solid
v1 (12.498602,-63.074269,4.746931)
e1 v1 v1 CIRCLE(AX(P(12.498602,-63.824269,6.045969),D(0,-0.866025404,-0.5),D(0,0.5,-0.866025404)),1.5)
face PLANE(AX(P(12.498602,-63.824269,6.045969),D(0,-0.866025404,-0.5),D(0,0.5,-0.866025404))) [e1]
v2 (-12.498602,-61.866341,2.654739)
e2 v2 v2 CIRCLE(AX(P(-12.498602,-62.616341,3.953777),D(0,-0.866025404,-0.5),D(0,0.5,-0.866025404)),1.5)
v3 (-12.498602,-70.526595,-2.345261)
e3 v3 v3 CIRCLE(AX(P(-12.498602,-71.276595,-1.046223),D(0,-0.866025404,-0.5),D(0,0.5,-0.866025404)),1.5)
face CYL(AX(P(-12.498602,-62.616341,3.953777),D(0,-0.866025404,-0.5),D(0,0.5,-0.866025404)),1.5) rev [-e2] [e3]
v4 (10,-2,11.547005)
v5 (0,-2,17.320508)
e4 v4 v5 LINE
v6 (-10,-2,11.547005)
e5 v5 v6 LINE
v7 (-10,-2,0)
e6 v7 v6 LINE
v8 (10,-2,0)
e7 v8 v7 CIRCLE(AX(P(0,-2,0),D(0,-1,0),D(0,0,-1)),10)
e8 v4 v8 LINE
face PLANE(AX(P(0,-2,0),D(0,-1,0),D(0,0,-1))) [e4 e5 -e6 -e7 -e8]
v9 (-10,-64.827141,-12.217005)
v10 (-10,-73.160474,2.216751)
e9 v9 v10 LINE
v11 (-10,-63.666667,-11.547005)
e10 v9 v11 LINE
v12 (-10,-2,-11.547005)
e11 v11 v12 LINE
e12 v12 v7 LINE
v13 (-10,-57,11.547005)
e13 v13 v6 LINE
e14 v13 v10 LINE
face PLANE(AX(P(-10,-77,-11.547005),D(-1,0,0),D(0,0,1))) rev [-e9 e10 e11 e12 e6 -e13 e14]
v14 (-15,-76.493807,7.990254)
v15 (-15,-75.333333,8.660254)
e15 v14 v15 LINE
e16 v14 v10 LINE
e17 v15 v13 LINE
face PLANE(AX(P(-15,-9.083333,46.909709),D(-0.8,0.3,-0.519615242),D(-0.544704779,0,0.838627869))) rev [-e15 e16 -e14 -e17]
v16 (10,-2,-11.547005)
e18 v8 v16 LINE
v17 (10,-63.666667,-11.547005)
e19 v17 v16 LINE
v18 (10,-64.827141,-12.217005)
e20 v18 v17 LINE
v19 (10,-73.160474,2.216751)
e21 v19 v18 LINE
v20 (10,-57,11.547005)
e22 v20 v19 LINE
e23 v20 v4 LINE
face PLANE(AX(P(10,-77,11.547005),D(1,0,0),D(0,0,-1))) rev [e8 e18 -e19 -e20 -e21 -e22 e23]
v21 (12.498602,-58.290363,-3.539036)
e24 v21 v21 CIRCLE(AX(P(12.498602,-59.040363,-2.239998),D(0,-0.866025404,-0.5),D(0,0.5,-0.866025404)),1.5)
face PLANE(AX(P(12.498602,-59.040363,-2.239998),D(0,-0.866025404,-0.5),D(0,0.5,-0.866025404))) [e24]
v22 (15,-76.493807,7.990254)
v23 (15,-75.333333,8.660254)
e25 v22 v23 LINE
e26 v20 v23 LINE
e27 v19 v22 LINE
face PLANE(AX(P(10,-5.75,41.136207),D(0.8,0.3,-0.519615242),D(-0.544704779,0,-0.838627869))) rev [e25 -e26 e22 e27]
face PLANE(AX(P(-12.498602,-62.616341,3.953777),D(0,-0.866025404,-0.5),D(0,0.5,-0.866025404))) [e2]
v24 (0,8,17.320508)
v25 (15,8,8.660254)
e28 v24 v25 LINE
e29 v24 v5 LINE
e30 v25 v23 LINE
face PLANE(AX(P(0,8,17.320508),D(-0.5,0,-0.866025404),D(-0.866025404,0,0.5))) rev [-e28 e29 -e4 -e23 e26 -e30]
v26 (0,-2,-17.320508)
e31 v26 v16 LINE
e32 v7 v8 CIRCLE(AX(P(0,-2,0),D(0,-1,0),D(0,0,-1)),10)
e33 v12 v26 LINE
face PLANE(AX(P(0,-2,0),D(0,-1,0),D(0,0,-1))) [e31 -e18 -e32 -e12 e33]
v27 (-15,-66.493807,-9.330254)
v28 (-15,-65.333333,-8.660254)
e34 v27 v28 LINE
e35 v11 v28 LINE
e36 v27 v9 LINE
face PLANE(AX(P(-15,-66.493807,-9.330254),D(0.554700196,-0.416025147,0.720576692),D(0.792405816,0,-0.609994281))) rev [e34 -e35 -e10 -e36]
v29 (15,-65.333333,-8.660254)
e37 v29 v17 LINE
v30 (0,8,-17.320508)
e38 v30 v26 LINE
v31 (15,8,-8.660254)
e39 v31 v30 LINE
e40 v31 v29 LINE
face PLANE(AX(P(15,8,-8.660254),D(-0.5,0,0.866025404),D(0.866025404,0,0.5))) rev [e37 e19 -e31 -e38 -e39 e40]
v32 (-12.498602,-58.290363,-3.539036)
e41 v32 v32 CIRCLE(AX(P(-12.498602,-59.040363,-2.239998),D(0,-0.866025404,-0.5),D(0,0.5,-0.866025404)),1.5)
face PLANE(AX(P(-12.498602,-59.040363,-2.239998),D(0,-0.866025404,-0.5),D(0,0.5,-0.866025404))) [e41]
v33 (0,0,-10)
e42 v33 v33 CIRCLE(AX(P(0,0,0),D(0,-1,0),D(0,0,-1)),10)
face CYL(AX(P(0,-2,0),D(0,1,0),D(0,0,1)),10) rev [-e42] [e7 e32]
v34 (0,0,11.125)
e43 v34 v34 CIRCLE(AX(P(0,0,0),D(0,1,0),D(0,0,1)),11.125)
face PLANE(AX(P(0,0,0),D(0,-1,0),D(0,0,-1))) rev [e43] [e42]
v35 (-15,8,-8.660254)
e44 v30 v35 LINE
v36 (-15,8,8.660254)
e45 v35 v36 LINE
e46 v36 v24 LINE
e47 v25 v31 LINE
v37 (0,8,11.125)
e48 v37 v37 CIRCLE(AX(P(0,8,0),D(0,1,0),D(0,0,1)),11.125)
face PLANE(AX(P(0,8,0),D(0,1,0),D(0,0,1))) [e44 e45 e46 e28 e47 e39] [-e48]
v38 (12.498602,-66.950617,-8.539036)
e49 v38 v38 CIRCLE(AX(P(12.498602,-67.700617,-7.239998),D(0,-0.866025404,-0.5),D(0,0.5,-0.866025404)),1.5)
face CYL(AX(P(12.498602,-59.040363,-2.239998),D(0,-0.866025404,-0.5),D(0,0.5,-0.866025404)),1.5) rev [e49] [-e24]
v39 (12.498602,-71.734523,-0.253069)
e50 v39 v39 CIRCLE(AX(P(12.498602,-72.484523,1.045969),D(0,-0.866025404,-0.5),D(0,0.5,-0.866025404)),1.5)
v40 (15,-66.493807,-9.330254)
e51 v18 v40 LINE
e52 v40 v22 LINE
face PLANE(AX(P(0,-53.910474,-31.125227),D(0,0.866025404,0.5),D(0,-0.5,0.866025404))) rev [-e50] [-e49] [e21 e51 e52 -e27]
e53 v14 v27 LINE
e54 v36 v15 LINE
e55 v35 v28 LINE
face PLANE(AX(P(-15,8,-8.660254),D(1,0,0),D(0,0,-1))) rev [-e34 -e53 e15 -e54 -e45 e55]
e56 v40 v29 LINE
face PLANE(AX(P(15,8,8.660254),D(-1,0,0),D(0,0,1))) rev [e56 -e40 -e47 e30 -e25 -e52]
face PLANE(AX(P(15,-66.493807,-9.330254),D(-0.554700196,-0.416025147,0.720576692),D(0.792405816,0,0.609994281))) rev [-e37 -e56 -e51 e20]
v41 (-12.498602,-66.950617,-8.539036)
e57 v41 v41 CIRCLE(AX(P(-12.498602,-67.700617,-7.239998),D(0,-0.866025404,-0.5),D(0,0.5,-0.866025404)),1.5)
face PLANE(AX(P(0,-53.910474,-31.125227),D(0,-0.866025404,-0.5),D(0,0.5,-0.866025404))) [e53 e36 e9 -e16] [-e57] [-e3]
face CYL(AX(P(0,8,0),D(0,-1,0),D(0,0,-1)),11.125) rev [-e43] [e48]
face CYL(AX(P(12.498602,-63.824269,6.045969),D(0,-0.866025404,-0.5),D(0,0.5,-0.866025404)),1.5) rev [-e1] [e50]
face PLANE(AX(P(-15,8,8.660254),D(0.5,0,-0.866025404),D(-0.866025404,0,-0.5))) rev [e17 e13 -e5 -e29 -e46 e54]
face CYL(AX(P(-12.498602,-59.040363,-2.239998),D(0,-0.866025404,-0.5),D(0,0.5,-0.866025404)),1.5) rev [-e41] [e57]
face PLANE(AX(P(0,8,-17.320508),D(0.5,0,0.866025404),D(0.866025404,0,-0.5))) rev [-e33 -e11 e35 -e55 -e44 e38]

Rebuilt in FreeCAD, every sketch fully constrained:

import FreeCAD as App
import Part
import Sketcher
Q = App.Units.Quantity

doc = App.newDocument("Part")
body = doc.addObject("PartDesign::Body", "Body")

# Sketch on XZ plane
sketch1 = body.newObject("Sketcher::SketchObject", "Sketch")
sketch1.AttachmentSupport = (doc.getObject("XZ_Plane"), [""])
sketch1.MapMode = "FlatFace"
sketch1.addGeometry([
    Part.LineSegment(App.Vector(0, -17, 0), App.Vector(-15, -9, 0)),  # 0
    Part.LineSegment(App.Vector(-15, -9, 0), App.Vector(-15, 9, 0)),  # 1
    Part.LineSegment(App.Vector(-15, 9, 0), App.Vector(0, 17, 0)),  # 2
    Part.LineSegment(App.Vector(0, 17, 0), App.Vector(15, 9, 0)),  # 3
    Part.LineSegment(App.Vector(15, 9, 0), App.Vector(15, -9, 0)),  # 4
    Part.LineSegment(App.Vector(15, -9, 0), App.Vector(0, -17, 0)),  # 5
    Part.Circle(App.Vector(0, 0, 0), App.Vector(0, 0, 1), 11),  # 6
], False)
sketch1.addConstraint([
    Sketcher.Constraint("Coincident", 0, 2, 1, 1),
    Sketcher.Constraint("Coincident", 1, 2, 2, 1),
    Sketcher.Constraint("Coincident", 2, 2, 3, 1),
    Sketcher.Constraint("Coincident", 3, 2, 4, 1),
    Sketcher.Constraint("Coincident", 4, 2, 5, 1),
    Sketcher.Constraint("Coincident", 5, 2, 0, 1),
    Sketcher.Constraint("Vertical", 1),
    Sketcher.Constraint("Vertical", 4),
    Sketcher.Constraint("Coincident", 6, 3, -1, 1),
    Sketcher.Constraint("Symmetric", 0, 2, 3, 2, -1, 1),
    Sketcher.Constraint("Symmetric", 2, 2, 5, 2, -1, 1),
    Sketcher.Constraint("PointOnObject", 2, 2, -2),
    Sketcher.Constraint("Parallel", 2, 5),
    Sketcher.Constraint("Horizontal", 1, 2, 3, 2),
    Sketcher.Constraint("Diameter", 6, Q("22.25 mm")),
    Sketcher.Constraint("Angle", 0, Q("150 deg")),
    Sketcher.Constraint("DistanceX", 0, 2, -1, 1, Q("15 mm")),
    Sketcher.Constraint("DistanceY", 1, 1, 1, 2, Q("17.320508 mm")),
])
pad1 = body.newObject("PartDesign::Pad", "Pad")
pad1.Profile = sketch1
pad1.Length = 8
pad1.Reversed = True

# Sketch on XZ plane
sketch2 = body.newObject("Sketcher::SketchObject", "Sketch001")
sketch2.AttachmentSupport = (doc.getObject("XZ_Plane"), [""])
sketch2.MapMode = "FlatFace"
sketch2.addGeometry([
    Part.LineSegment(App.Vector(0, 17, 0), App.Vector(-15, 9, 0)),  # 0
    Part.LineSegment(App.Vector(-15, 9, 0), App.Vector(-15, -9, 0)),  # 1
    Part.LineSegment(App.Vector(-15, -9, 0), App.Vector(0, -17, 0)),  # 2
    Part.LineSegment(App.Vector(0, -17, 0), App.Vector(15, -9, 0)),  # 3
    Part.LineSegment(App.Vector(15, -9, 0), App.Vector(15, 9, 0)),  # 4
    Part.LineSegment(App.Vector(15, 9, 0), App.Vector(0, 17, 0)),  # 5
    Part.Circle(App.Vector(0, 0, 0), App.Vector(0, 0, 1), 10),  # 6
], False)
sketch2.addConstraint([
    Sketcher.Constraint("Coincident", 0, 2, 1, 1),
    Sketcher.Constraint("Coincident", 1, 2, 2, 1),
    Sketcher.Constraint("Coincident", 2, 2, 3, 1),
    Sketcher.Constraint("Coincident", 3, 2, 4, 1),
    Sketcher.Constraint("Coincident", 4, 2, 5, 1),
    Sketcher.Constraint("Coincident", 5, 2, 0, 1),
    Sketcher.Constraint("Vertical", 1),
    Sketcher.Constraint("Vertical", 4),
    Sketcher.Constraint("Coincident", 6, 3, -1, 1),
    Sketcher.Constraint("Symmetric", 0, 2, 3, 2, -1, 1),
    Sketcher.Constraint("Symmetric", 2, 2, 5, 2, -1, 1),
    Sketcher.Constraint("PointOnObject", 2, 2, -2),
    Sketcher.Constraint("Parallel", 2, 5),
    Sketcher.Constraint("Horizontal", 1, 2, 3, 2),
    Sketcher.Constraint("Diameter", 6, Q("20 mm")),
    Sketcher.Constraint("Angle", 0, Q("-150 deg")),
    Sketcher.Constraint("DistanceX", 0, 2, -1, 1, Q("15 mm")),
    Sketcher.Constraint("DistanceY", 1, 2, 1, 1, Q("17.320508 mm")),
])
pad2 = body.newObject("PartDesign::Pad", "Pad001")
pad2.Profile = sketch2
pad2.Length = 2

# Sketch on XZ plane
sketch3 = body.newObject("Sketcher::SketchObject", "Sketch002")
sketch3.AttachmentSupport = (doc.getObject("XZ_Plane"), [""])
sketch3.MapMode = "FlatFace"
sketch3.AttachmentOffset = App.Placement(App.Vector(0, 0, 2), App.Rotation())
sketch3.addGeometry([
    Part.LineSegment(App.Vector(-10, 12, 0), App.Vector(-15, 9, 0)),  # 0
    Part.LineSegment(App.Vector(-15, 9, 0), App.Vector(-15, -9, 0)),  # 1
    Part.LineSegment(App.Vector(-15, -9, 0), App.Vector(-10, -12, 0)),  # 2
    Part.LineSegment(App.Vector(-10, -12, 0), App.Vector(-10, 12, 0)),  # 3
    Part.LineSegment(App.Vector(10, -12, 0), App.Vector(15, -9, 0)),  # 4
    Part.LineSegment(App.Vector(15, -9, 0), App.Vector(15, 9, 0)),  # 5
    Part.LineSegment(App.Vector(15, 9, 0), App.Vector(10, 12, 0)),  # 6
    Part.LineSegment(App.Vector(10, 12, 0), App.Vector(10, -12, 0)),  # 7
], False)
sketch3.addConstraint([
    Sketcher.Constraint("Coincident", 0, 2, 1, 1),
    Sketcher.Constraint("Coincident", 1, 2, 2, 1),
    Sketcher.Constraint("Coincident", 2, 2, 3, 1),
    Sketcher.Constraint("Coincident", 3, 2, 0, 1),
    Sketcher.Constraint("Coincident", 4, 2, 5, 1),
    Sketcher.Constraint("Coincident", 5, 2, 6, 1),
    Sketcher.Constraint("Coincident", 6, 2, 7, 1),
    Sketcher.Constraint("Coincident", 7, 2, 4, 1),
    Sketcher.Constraint("Vertical", 1),
    Sketcher.Constraint("Vertical", 3),
    Sketcher.Constraint("Vertical", 5),
    Sketcher.Constraint("Vertical", 7),
    Sketcher.Constraint("Symmetric", 0, 2, 4, 2, -1, 1),
    Sketcher.Constraint("Symmetric", 2, 2, 6, 2, -1, 1),
    Sketcher.Constraint("Parallel", 0, 4),
    Sketcher.Constraint("Parallel", 2, 6),
    Sketcher.Constraint("Horizontal", 1, 2, 4, 2),
    Sketcher.Constraint("Horizontal", 3, 2, 6, 2),
    Sketcher.Constraint("Angle", 0, Q("-150 deg")),
    Sketcher.Constraint("DistanceX", 0, 2, -1, 1, Q("15 mm")),
    Sketcher.Constraint("DistanceX", 2, 2, -1, 1, Q("10 mm")),
    Sketcher.Constraint("DistanceY", 1, 2, 1, 1, Q("17.320508 mm")),
])
pad3 = body.newObject("PartDesign::Pad", "Pad002")
pad3.Profile = sketch3
pad3.Length = 75

# Sketch on YZ plane
sketch4 = body.newObject("Sketcher::SketchObject", "Sketch003")
sketch4.AttachmentSupport = (doc.getObject("YZ_Plane"), [""])
sketch4.MapMode = "FlatFace"
sketch4.AttachmentOffset = App.Placement(App.Vector(0, 0, -15), App.Rotation())
sketch4.addGeometry([
    Part.LineSegment(App.Vector(-77, 12, 0), App.Vector(-64, -12, 0)),
    Part.LineSegment(App.Vector(-64, -12, 0), App.Vector(-77, -12, 0)),
    Part.LineSegment(App.Vector(-77, -12, 0), App.Vector(-77, 12, 0)),
], False)
sketch4.addConstraint([
    Sketcher.Constraint("Coincident", 0, 2, 1, 1),
    Sketcher.Constraint("Coincident", 1, 2, 2, 1),
    Sketcher.Constraint("Coincident", 2, 2, 0, 1),
    Sketcher.Constraint("Horizontal", 1),
    Sketcher.Constraint("Vertical", 2),
    Sketcher.Constraint("Angle", 0, Q("-60 deg")),
    Sketcher.Constraint("DistanceX", 1, 2, -1, 1, Q("77 mm")),
    Sketcher.Constraint("DistanceY", 2, 1, 2, 2, Q("23.094011 mm")),
    Sketcher.Constraint("DistanceY", 0, 2, -1, 1, Q("11.547005 mm")),
])
pocket1 = body.newObject("PartDesign::Pocket", "Pocket")
pocket1.Profile = sketch4
pocket1.Type = "ThroughAll"
pocket1.Reversed = True

# Sketch on an angled plane
sketch5 = body.newObject("Sketcher::SketchObject", "Sketch004")
sketch5.Placement = App.Placement(App.Vector(0, -52.75, -30.455227), App.Rotation(App.Vector(1, 0, 0), App.Vector(0, -0.5, 0.866025404), App.Vector(0, -0.866025404, -0.5), "ZXY"))
sketch5.addGeometry([
    Part.LineSegment(App.Vector(-10, 49, 0), App.Vector(-15, 45, 0)),  # 0
    Part.LineSegment(App.Vector(-15, 45, 0), App.Vector(-15, 25, 0)),  # 1
    Part.LineSegment(App.Vector(-15, 25, 0), App.Vector(-10, 22, 0)),  # 2
    Part.LineSegment(App.Vector(-10, 22, 0), App.Vector(-10, 49, 0)),  # 3
    Part.LineSegment(App.Vector(15, 45, 0), App.Vector(10, 49, 0)),  # 4
    Part.LineSegment(App.Vector(10, 49, 0), App.Vector(10, 22, 0)),  # 5
    Part.LineSegment(App.Vector(10, 22, 0), App.Vector(15, 25, 0)),  # 6
    Part.LineSegment(App.Vector(15, 25, 0), App.Vector(15, 45, 0)),  # 7
], False)
sketch5.addConstraint([
    Sketcher.Constraint("Coincident", 0, 2, 1, 1),
    Sketcher.Constraint("Coincident", 1, 2, 2, 1),
    Sketcher.Constraint("Coincident", 2, 2, 3, 1),
    Sketcher.Constraint("Coincident", 3, 2, 0, 1),
    Sketcher.Constraint("Coincident", 4, 2, 5, 1),
    Sketcher.Constraint("Coincident", 5, 2, 6, 1),
    Sketcher.Constraint("Coincident", 6, 2, 7, 1),
    Sketcher.Constraint("Coincident", 7, 2, 4, 1),
    Sketcher.Constraint("Vertical", 1),
    Sketcher.Constraint("Vertical", 3),
    Sketcher.Constraint("Vertical", 5),
    Sketcher.Constraint("Vertical", 7),
    Sketcher.Constraint("Symmetric", 3, 2, 4, 2, -2),
    Sketcher.Constraint("Symmetric", 1, 2, 6, 2, -2),
    Sketcher.Constraint("Parallel", 2, 4),
    Sketcher.Constraint("Parallel", 0, 6),
    Sketcher.Constraint("Horizontal", 2, 2, 5, 2),
    Sketcher.Constraint("DistanceY", 1, 2, 1, 1, Q("20 mm")),
    Sketcher.Constraint("DistanceX", 0, 2, -1, 1, Q("15 mm")),
    Sketcher.Constraint("DistanceX", 2, 2, -1, 1, Q("10 mm")),
    Sketcher.Constraint("DistanceY", -1, 1, 3, 2, Q("48.5 mm")),
    Sketcher.Constraint("DistanceY", 3, 1, 3, 2, Q("26.666667 mm")),
])
pad4 = body.newObject("PartDesign::Pad", "Pad003")
pad4.Profile = sketch5
pad4.Length = 1.34

# Sketch on an angled plane
sketch6 = body.newObject("Sketcher::SketchObject", "Sketch005")
sketch6.Placement = App.Placement(App.Vector(0, -53.910474, -31.125227), App.Rotation(App.Vector(1, 0, 0), App.Vector(0, -0.5, 0.866025404), App.Vector(0, -0.866025404, -0.5), "ZXY"))
sketch6.addGeometry([
    Part.LineSegment(App.Vector(-15, 45, 0), App.Vector(-10, 39, 0)),  # 0
    Part.LineSegment(App.Vector(-10, 39, 0), App.Vector(-10, 49, 0)),  # 1
    Part.LineSegment(App.Vector(-10, 49, 0), App.Vector(-15, 45, 0)),  # 2
    Part.LineSegment(App.Vector(10, 49, 0), App.Vector(10, 39, 0)),  # 3
    Part.LineSegment(App.Vector(10, 39, 0), App.Vector(15, 45, 0)),  # 4
    Part.LineSegment(App.Vector(15, 45, 0), App.Vector(10, 49, 0)),  # 5
], False)
sketch6.addConstraint([
    Sketcher.Constraint("Coincident", 0, 2, 1, 1),
    Sketcher.Constraint("Coincident", 1, 2, 2, 1),
    Sketcher.Constraint("Coincident", 2, 2, 0, 1),
    Sketcher.Constraint("Coincident", 3, 2, 4, 1),
    Sketcher.Constraint("Coincident", 4, 2, 5, 1),
    Sketcher.Constraint("Coincident", 5, 2, 3, 1),
    Sketcher.Constraint("Vertical", 1),
    Sketcher.Constraint("Vertical", 3),
    Sketcher.Constraint("Symmetric", 0, 2, 3, 2, -2),
    Sketcher.Constraint("Symmetric", 2, 2, 4, 2, -2),
    Sketcher.Constraint("Horizontal", 1, 2, 5, 2),
    Sketcher.Constraint("DistanceY", 1, 1, 1, 2, Q("10 mm")),
    Sketcher.Constraint("DistanceX", 0, 2, -1, 1, Q("10 mm")),
    Sketcher.Constraint("DistanceX", 2, 2, -1, 1, Q("15 mm")),
    Sketcher.Constraint("DistanceY", -1, 1, 0, 2, Q("38.5 mm")),
    Sketcher.Constraint("Distance", 0, Q("8.333333 mm")),
])
pocket2 = body.newObject("PartDesign::Pocket", "Pocket001")
pocket2.Profile = sketch6
pocket2.Type = "ThroughAll"

# Sketch on an angled plane
sketch7 = body.newObject("Sketcher::SketchObject", "Sketch006")
sketch7.Placement = App.Placement(App.Vector(0, -53.910474, -31.125227), App.Rotation(App.Vector(1, 0, 0), App.Vector(0, -0.5, 0.866025404), App.Vector(0, -0.866025404, -0.5), "ZXY"))
sketch7.addGeometry([
    Part.Circle(App.Vector(-12.5, 34.7, 0), App.Vector(0, 0, 1), 1.5),
    Part.Circle(App.Vector(-12.5, 27.6, 0), App.Vector(0, 0, 1), 1.5),
    Part.Circle(App.Vector(12.5, 27.6, 0), App.Vector(0, 0, 1), 1.5),
    Part.Circle(App.Vector(12.5, 37.1, 0), App.Vector(0, 0, 1), 1.5),
], False)
sketch7.addConstraint([
    Sketcher.Constraint("Equal", 0, 1),
    Sketcher.Constraint("Equal", 1, 2),
    Sketcher.Constraint("Equal", 2, 3),
    Sketcher.Constraint("Symmetric", 1, 3, 2, 3, -2),
    Sketcher.Constraint("Vertical", 0, 3, 1, 3),
    Sketcher.Constraint("Vertical", 2, 3, 3, 3),
    Sketcher.Constraint("Diameter", 0, Q("3 mm")),
    Sketcher.Constraint("DistanceY", -1, 1, 0, 3, Q("34.732241 mm")),
    Sketcher.Constraint("DistanceY", 2, 3, 3, 3, Q("9.567811 mm")),
    Sketcher.Constraint("DistanceX", 0, 3, -1, 1, Q("12.498602 mm")),
    Sketcher.Constraint("DistanceY", -1, 1, 1, 3, Q("27.580286 mm")),
])
pocket3 = body.newObject("PartDesign::Pocket", "Pocket002")
pocket3.Profile = sketch7
pocket3.Length = 10

doc.recompute()
